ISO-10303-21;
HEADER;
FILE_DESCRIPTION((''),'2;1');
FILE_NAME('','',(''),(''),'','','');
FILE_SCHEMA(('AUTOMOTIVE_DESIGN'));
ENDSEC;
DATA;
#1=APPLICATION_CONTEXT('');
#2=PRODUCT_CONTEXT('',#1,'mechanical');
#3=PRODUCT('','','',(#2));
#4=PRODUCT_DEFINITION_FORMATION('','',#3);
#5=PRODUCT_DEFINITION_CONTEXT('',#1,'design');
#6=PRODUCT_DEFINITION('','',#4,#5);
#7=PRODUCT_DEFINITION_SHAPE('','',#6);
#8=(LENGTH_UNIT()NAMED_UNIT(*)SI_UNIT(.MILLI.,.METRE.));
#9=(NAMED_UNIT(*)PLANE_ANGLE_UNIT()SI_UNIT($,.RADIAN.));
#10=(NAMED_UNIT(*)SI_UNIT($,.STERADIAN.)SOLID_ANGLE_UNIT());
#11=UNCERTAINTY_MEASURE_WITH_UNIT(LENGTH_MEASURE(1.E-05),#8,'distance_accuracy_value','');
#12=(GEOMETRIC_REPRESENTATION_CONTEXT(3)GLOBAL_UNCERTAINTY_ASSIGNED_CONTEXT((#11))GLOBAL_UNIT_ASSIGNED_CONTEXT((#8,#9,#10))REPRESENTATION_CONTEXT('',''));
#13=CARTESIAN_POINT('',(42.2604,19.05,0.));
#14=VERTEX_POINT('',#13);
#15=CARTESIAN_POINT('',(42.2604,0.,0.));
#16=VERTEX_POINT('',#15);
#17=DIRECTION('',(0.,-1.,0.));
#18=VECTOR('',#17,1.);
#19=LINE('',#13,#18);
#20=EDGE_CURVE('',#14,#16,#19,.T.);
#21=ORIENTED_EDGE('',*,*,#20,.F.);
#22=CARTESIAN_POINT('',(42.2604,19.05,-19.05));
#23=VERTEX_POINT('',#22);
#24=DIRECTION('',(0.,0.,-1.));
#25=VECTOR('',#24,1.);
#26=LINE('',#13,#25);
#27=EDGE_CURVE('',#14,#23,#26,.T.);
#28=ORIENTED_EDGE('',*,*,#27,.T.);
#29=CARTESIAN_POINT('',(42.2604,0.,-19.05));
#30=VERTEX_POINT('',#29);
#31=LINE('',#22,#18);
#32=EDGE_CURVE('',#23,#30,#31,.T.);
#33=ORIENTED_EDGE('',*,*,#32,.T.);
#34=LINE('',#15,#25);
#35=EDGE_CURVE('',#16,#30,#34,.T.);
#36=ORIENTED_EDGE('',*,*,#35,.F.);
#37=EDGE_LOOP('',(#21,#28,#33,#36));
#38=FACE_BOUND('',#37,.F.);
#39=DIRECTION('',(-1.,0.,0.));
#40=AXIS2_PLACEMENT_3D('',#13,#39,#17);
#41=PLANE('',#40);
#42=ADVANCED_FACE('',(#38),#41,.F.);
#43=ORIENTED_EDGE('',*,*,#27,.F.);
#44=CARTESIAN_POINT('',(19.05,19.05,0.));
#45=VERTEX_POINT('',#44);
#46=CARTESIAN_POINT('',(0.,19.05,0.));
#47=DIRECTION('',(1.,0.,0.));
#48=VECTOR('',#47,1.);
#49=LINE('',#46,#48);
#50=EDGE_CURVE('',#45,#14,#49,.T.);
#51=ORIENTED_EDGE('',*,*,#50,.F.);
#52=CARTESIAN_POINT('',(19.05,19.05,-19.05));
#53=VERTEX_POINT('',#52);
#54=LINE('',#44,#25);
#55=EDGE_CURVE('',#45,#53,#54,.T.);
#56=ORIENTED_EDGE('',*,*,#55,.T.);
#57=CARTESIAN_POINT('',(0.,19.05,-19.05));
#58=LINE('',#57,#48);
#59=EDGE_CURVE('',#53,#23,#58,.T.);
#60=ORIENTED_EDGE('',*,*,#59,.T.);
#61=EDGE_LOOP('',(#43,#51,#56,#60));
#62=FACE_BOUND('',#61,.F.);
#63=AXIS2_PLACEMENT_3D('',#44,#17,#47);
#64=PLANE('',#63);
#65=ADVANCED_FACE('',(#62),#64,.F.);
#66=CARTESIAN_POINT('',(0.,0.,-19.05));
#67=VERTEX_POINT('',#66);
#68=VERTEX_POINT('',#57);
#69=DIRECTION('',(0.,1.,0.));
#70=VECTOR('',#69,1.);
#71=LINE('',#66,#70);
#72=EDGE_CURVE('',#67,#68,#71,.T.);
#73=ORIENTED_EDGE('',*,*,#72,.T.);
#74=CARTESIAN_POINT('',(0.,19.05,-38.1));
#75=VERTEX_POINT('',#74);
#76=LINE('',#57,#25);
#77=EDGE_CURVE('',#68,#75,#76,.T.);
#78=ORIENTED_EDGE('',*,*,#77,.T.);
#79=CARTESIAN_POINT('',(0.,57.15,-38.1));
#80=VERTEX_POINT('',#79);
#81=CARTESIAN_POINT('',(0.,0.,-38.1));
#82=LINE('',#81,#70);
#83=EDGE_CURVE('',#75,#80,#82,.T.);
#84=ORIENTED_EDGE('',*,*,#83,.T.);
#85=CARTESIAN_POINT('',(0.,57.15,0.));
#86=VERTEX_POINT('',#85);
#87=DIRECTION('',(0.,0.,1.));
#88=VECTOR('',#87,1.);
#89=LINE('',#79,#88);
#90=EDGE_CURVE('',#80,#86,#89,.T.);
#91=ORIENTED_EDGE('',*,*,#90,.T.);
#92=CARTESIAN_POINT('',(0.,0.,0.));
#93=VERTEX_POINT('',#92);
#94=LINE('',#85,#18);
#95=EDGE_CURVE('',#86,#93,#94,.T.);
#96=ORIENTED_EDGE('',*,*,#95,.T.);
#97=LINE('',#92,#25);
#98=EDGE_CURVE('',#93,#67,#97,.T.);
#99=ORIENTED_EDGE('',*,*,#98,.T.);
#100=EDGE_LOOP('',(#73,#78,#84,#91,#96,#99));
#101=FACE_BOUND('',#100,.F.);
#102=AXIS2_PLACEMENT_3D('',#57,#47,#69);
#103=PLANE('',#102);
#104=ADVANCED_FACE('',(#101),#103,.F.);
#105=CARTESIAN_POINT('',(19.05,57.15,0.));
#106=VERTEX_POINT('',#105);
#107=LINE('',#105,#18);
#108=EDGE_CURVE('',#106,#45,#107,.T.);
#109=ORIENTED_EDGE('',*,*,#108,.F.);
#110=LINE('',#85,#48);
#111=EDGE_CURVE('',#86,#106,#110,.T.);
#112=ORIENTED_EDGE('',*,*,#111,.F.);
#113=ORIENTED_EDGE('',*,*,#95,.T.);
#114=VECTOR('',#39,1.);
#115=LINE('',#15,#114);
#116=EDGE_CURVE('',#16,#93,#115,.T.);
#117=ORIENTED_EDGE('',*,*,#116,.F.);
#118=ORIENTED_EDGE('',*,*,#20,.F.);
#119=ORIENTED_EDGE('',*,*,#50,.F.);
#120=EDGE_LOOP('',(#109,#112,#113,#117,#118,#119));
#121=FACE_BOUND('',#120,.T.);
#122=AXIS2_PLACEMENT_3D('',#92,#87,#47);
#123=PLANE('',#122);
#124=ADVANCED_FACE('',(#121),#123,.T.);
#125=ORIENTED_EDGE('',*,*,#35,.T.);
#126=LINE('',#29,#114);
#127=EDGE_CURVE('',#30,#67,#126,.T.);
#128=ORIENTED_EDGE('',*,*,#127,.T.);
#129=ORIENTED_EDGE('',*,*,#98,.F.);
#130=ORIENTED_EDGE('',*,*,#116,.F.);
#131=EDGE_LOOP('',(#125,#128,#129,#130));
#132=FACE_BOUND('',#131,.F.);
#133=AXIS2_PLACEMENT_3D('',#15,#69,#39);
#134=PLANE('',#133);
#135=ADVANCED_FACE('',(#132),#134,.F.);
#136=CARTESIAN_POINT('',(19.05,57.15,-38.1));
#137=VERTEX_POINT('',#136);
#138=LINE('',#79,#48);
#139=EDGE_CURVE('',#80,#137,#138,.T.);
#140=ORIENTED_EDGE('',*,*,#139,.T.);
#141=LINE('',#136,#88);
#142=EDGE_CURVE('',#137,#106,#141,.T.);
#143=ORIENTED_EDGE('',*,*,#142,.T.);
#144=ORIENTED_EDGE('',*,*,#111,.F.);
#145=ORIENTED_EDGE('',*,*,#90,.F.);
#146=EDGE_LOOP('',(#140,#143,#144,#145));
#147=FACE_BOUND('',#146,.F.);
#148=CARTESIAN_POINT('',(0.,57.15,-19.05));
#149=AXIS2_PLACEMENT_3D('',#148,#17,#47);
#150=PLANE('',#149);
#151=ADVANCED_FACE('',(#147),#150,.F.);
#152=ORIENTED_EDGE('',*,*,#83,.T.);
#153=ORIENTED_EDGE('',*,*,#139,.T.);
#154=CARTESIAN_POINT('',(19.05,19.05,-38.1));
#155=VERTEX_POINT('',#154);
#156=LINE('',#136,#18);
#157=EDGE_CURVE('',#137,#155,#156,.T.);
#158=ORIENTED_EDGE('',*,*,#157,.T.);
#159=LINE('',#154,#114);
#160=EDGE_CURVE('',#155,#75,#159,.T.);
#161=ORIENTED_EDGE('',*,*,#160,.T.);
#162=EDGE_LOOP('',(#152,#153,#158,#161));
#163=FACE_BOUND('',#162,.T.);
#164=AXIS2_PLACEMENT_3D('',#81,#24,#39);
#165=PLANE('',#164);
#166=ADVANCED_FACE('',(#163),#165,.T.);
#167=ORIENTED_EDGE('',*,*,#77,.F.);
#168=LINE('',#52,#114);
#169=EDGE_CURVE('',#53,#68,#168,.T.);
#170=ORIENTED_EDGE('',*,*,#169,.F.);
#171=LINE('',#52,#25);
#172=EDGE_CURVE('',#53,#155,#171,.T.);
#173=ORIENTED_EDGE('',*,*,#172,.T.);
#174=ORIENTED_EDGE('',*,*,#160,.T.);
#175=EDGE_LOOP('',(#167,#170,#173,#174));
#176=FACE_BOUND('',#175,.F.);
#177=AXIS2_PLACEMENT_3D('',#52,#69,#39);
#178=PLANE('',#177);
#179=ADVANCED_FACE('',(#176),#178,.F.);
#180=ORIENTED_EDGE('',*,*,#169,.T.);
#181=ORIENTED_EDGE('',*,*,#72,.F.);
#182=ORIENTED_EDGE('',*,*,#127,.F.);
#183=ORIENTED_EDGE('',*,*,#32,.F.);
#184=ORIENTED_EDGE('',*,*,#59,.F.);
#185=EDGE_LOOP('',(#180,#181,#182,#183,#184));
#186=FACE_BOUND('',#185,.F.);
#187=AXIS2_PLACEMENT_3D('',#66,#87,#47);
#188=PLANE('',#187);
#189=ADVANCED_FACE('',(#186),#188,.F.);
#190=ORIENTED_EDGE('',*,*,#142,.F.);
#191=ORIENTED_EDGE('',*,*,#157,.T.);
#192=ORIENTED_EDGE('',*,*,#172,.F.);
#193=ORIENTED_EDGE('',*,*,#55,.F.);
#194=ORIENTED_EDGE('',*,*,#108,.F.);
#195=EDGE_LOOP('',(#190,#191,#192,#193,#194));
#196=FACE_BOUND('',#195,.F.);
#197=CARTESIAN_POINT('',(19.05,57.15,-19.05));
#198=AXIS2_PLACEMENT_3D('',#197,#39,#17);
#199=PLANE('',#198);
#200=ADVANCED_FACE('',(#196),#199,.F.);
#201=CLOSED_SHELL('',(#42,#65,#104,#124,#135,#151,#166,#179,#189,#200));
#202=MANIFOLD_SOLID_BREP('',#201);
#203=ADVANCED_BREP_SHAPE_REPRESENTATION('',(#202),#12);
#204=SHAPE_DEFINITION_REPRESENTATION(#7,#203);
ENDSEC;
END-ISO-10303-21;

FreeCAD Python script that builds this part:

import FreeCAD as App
import Part
import Sketcher

V = App.Vector
Q = App.Units.Quantity


def add_polygon(sketch, points):
    """Adds a closed chain of lines whose ends are joined by coincident constraints."""
    first, n = sketch.GeometryCount, len(points)
    for a, b in zip(points, points[1:] + points[:1]):
        sketch.addGeometry(Part.LineSegment(App.Vector(*a, 0), App.Vector(*b, 0)), False)
    for i in range(n):
        sketch.addConstraint(Sketcher.Constraint("Coincident", first + i, 2, first + (i + 1) % n, 1))

doc = App.newDocument("Part")
body = doc.addObject("PartDesign::Body", "Body")

# Sketch on XY plane
sketch1 = doc.addObject("Sketcher::SketchObject", "Sketch")
body.addObject(sketch1)
sketch1.AttachmentSupport = (doc.XY_Plane, [""])
sketch1.MapMode = "FlatFace"
add_polygon(sketch1, [(42.2604, 19.05), (19.05, 19.05), (19.05, 57.15), (0, 57.15), (0, 0), (42.2604, 0)])  # lines 0-5
sketch1.addConstraint([
    Sketcher.Constraint("Horizontal", 0),
    Sketcher.Constraint("Vertical", 1),
    Sketcher.Constraint("Horizontal", 2),
    Sketcher.Constraint("Vertical", 3),
    Sketcher.Constraint("Horizontal", 4),
    Sketcher.Constraint("Vertical", 5),
    Sketcher.Constraint("Coincident", 3, 2, -1, 1),
    Sketcher.Constraint("Equal", 2, 5),
    Sketcher.Constraint("DistanceY", 1, 1, 1, 2, Q("1.5 in")),
    Sketcher.Constraint("DistanceX", 2, 2, 2, 1, Q("0.75 in")),
    Sketcher.Constraint("DistanceX", 0, 2, 0, 1, Q("0.9138 in")),
])
pad1 = doc.addObject("PartDesign::Pad", "Pad")
body.addObject(pad1)
pad1.Profile = sketch1
pad1.Length = Q("0.75 in")
pad1.Reversed = True

# Sketch on XY plane
sketch2 = doc.addObject("Sketcher::SketchObject", "Sketch001")
body.addObject(sketch2)
sketch2.AttachmentSupport = (doc.XY_Plane, [""])
sketch2.MapMode = "FlatFace"
sketch2.AttachmentOffset = App.Placement(V(0, 0, -0.75 * 25.4), App.Rotation())
add_polygon(sketch2, [(19.05, 57.15), (19.05, 19.05), (0, 19.05), (0, 57.15)])  # lines 0-3
sketch2.addConstraint([
    Sketcher.Constraint("Vertical", 0),
    Sketcher.Constraint("Horizontal", 1),
    Sketcher.Constraint("Vertical", 2),
    Sketcher.Constraint("Horizontal", 3),
    Sketcher.Constraint("PointOnObject", 1, 2, -2),
    Sketcher.Constraint("DistanceY", 0, 2, 0, 1, Q("1.5 in")),
    Sketcher.Constraint("DistanceX", 1, 2, 1, 1, Q("0.75 in")),
    Sketcher.Constraint("DistanceY", -1, 1, 0, 2, Q("0.75 in")),
])
pad2 = doc.addObject("PartDesign::Pad", "Pad001")
body.addObject(pad2)
pad2.Profile = sketch2
pad2.Length = Q("0.75 in")
pad2.Reversed = True

doc.recompute()
